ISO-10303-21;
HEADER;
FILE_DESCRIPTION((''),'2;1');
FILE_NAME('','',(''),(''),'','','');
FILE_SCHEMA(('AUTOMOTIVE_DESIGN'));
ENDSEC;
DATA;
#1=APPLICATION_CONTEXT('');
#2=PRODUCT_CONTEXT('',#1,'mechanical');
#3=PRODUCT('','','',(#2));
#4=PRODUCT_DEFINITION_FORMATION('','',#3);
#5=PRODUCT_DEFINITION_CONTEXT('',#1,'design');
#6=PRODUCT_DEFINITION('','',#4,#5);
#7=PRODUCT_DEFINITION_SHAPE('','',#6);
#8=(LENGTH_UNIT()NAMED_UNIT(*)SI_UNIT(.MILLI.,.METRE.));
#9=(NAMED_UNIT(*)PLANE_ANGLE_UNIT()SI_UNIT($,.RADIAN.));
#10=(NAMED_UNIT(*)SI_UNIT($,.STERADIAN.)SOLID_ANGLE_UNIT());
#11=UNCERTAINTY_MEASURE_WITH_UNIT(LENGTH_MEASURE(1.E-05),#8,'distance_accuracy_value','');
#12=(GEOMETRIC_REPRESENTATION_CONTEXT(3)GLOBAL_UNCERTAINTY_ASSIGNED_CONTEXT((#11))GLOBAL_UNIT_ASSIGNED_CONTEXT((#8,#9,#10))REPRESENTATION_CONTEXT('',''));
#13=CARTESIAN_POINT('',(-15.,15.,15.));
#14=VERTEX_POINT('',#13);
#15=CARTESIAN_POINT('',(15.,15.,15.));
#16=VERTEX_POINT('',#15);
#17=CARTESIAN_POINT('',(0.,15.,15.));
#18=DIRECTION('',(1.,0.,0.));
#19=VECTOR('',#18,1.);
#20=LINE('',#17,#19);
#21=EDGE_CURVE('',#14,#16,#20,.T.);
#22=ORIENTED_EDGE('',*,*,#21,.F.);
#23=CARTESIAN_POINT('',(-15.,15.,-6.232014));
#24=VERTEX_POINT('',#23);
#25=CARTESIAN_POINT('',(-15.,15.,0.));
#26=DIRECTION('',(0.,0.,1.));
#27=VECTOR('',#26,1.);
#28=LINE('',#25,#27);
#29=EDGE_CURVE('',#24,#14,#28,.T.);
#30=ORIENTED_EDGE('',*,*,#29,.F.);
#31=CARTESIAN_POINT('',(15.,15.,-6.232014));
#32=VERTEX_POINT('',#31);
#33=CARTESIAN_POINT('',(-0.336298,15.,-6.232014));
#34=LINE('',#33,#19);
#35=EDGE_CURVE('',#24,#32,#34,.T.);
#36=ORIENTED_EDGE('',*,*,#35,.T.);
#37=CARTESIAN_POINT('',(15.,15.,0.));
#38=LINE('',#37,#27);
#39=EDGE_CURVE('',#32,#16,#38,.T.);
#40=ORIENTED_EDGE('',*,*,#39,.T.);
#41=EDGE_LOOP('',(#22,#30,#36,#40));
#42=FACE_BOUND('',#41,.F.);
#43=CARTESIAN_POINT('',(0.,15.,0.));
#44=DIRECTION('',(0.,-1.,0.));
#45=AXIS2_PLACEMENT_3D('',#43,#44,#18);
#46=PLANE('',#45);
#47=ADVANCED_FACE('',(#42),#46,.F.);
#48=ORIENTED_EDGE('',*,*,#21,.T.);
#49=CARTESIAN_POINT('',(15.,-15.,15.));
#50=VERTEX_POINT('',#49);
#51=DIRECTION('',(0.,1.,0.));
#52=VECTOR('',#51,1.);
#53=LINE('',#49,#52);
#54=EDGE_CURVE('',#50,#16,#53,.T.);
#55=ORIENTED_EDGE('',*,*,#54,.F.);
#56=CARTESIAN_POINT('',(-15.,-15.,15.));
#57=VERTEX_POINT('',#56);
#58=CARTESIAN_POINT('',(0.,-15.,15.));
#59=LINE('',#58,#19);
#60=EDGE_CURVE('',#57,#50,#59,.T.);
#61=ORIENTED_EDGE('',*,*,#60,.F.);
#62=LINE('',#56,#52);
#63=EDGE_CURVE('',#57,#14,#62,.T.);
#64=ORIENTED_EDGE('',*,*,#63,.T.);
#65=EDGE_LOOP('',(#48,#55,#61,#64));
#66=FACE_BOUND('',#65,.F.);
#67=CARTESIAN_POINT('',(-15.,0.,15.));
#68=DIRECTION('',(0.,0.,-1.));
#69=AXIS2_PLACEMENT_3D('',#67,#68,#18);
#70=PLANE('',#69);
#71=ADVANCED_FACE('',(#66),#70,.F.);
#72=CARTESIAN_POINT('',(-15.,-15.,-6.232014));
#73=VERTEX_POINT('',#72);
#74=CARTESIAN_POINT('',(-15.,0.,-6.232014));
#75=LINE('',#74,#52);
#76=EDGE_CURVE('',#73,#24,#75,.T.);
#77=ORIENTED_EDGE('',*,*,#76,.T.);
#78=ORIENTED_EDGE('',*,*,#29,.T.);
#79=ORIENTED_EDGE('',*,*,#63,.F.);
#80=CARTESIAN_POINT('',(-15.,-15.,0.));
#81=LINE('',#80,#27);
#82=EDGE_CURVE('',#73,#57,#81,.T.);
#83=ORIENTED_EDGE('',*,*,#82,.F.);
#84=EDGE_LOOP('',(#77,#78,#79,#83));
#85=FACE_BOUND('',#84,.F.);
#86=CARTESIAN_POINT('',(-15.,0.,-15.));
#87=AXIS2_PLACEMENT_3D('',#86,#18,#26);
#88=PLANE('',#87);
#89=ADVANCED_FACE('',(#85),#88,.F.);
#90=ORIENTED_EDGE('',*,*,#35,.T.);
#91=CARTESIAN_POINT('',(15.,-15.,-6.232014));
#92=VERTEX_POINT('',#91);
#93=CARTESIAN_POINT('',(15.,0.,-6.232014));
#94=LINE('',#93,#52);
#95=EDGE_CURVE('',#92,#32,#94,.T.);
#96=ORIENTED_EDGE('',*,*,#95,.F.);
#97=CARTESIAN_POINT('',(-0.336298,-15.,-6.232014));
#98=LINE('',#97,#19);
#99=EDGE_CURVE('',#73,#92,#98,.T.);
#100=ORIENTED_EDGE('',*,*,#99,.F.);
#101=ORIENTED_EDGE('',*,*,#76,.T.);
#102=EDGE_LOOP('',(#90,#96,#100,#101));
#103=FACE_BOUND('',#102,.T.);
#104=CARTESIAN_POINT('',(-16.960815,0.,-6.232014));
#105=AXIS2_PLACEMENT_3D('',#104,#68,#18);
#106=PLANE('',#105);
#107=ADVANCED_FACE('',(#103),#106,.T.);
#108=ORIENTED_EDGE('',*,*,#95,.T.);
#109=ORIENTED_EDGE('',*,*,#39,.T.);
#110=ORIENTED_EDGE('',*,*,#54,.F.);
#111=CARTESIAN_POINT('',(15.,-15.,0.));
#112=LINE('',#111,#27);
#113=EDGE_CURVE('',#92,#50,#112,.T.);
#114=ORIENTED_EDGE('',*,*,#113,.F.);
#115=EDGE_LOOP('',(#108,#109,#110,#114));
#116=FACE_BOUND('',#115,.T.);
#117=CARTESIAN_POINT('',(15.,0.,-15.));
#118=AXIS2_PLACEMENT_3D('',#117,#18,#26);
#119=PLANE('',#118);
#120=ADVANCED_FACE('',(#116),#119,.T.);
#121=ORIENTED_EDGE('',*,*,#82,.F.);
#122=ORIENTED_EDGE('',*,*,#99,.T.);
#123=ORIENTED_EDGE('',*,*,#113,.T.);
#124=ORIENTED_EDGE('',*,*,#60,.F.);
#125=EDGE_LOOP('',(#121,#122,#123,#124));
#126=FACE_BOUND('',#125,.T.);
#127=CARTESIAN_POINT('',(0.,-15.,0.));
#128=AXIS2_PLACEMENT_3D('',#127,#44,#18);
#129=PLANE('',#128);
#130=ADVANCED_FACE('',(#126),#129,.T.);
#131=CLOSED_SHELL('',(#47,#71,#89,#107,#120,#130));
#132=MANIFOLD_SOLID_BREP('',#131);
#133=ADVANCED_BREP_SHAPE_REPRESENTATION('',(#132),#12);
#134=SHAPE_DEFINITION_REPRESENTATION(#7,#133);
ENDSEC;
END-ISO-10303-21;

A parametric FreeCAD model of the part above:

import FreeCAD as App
import Part
import Sketcher

V = App.Vector
Q = App.Units.Quantity

doc = App.newDocument("Part")
body = doc.addObject("PartDesign::Body", "Body")

# Sketch on XZ plane
sketch1 = doc.addObject("Sketcher::SketchObject", "Sketch")
body.addObject(sketch1)
sketch1.AttachmentSupport = (doc.XZ_Plane, [""])
sketch1.MapMode = "FlatFace"
sketch1.addGeometry([
    Part.LineSegment(V(-15, 15, 0), V(-15, -15, 0)),
    Part.LineSegment(V(-15, -15, 0), V(15, -15, 0)),
    Part.LineSegment(V(15, -15, 0), V(15, 15, 0)),
    Part.LineSegment(V(15, 15, 0), V(-15, 15, 0)),
], False)
sketch1.addConstraint([
    Sketcher.Constraint("Coincident", 0, 2, 1, 1),
    Sketcher.Constraint("Coincident", 1, 2, 2, 1),
    Sketcher.Constraint("Coincident", 2, 2, 3, 1),
    Sketcher.Constraint("Coincident", 3, 2, 0, 1),
    Sketcher.Constraint("Vertical", 0),
    Sketcher.Constraint("Horizontal", 1),
    Sketcher.Constraint("Vertical", 2),
    Sketcher.Constraint("Horizontal", 3),
    Sketcher.Constraint("Symmetric", 0, 2, 2, 2, -1, 1),
    Sketcher.Constraint("Equal", 3, 0),
    Sketcher.Constraint("DistanceX", 1, 1, 1, 2, Q("30 mm")),
])
pad1 = doc.addObject("PartDesign::Pad", "Pad")
body.addObject(pad1)
pad1.Profile = sketch1
pad1.Length = 30
pad1.Midplane = True

# Sketch on XZ plane
sketch2 = doc.addObject("Sketcher::SketchObject", "Sketch001")
body.addObject(sketch2)
sketch2.AttachmentSupport = (doc.XZ_Plane, [""])
sketch2.MapMode = "FlatFace"
sketch2.addGeometry([
    Part.LineSegment(V(-17, -6, 0), V(-17, -16, 0)),
    Part.LineSegment(V(-17, -16, 0), V(16, -16, 0)),
    Part.LineSegment(V(16, -16, 0), V(16, -6, 0)),
    Part.LineSegment(V(16, -6, 0), V(-17, -6, 0)),
], False)
sketch2.addConstraint([
    Sketcher.Constraint("Coincident", 0, 2, 1, 1),
    Sketcher.Constraint("Coincident", 1, 2, 2, 1),
    Sketcher.Constraint("Coincident", 2, 2, 3, 1),
    Sketcher.Constraint("Coincident", 3, 2, 0, 1),
    Sketcher.Constraint("Vertical", 0),
    Sketcher.Constraint("Horizontal", 1),
    Sketcher.Constraint("Vertical", 2),
    Sketcher.Constraint("Horizontal", 3),
    Sketcher.Constraint("DistanceX", 1, 1, 1, 2, Q("33.249034 mm")),
    Sketcher.Constraint("DistanceY", 0, 2, 0, 1, Q("10.076338 mm")),
    Sketcher.Constraint("DistanceY", 0, 2, -1, 1, Q("16.308352 mm")),
    Sketcher.Constraint("DistanceX", -1, 1, 1, 2, Q("16.288219 mm")),
])
pocket1 = doc.addObject("PartDesign::Pocket", "Pocket")
body.addObject(pocket1)
pocket1.Profile = sketch2
pocket1.Length = 30
pocket1.Midplane = True

doc.recompute()
